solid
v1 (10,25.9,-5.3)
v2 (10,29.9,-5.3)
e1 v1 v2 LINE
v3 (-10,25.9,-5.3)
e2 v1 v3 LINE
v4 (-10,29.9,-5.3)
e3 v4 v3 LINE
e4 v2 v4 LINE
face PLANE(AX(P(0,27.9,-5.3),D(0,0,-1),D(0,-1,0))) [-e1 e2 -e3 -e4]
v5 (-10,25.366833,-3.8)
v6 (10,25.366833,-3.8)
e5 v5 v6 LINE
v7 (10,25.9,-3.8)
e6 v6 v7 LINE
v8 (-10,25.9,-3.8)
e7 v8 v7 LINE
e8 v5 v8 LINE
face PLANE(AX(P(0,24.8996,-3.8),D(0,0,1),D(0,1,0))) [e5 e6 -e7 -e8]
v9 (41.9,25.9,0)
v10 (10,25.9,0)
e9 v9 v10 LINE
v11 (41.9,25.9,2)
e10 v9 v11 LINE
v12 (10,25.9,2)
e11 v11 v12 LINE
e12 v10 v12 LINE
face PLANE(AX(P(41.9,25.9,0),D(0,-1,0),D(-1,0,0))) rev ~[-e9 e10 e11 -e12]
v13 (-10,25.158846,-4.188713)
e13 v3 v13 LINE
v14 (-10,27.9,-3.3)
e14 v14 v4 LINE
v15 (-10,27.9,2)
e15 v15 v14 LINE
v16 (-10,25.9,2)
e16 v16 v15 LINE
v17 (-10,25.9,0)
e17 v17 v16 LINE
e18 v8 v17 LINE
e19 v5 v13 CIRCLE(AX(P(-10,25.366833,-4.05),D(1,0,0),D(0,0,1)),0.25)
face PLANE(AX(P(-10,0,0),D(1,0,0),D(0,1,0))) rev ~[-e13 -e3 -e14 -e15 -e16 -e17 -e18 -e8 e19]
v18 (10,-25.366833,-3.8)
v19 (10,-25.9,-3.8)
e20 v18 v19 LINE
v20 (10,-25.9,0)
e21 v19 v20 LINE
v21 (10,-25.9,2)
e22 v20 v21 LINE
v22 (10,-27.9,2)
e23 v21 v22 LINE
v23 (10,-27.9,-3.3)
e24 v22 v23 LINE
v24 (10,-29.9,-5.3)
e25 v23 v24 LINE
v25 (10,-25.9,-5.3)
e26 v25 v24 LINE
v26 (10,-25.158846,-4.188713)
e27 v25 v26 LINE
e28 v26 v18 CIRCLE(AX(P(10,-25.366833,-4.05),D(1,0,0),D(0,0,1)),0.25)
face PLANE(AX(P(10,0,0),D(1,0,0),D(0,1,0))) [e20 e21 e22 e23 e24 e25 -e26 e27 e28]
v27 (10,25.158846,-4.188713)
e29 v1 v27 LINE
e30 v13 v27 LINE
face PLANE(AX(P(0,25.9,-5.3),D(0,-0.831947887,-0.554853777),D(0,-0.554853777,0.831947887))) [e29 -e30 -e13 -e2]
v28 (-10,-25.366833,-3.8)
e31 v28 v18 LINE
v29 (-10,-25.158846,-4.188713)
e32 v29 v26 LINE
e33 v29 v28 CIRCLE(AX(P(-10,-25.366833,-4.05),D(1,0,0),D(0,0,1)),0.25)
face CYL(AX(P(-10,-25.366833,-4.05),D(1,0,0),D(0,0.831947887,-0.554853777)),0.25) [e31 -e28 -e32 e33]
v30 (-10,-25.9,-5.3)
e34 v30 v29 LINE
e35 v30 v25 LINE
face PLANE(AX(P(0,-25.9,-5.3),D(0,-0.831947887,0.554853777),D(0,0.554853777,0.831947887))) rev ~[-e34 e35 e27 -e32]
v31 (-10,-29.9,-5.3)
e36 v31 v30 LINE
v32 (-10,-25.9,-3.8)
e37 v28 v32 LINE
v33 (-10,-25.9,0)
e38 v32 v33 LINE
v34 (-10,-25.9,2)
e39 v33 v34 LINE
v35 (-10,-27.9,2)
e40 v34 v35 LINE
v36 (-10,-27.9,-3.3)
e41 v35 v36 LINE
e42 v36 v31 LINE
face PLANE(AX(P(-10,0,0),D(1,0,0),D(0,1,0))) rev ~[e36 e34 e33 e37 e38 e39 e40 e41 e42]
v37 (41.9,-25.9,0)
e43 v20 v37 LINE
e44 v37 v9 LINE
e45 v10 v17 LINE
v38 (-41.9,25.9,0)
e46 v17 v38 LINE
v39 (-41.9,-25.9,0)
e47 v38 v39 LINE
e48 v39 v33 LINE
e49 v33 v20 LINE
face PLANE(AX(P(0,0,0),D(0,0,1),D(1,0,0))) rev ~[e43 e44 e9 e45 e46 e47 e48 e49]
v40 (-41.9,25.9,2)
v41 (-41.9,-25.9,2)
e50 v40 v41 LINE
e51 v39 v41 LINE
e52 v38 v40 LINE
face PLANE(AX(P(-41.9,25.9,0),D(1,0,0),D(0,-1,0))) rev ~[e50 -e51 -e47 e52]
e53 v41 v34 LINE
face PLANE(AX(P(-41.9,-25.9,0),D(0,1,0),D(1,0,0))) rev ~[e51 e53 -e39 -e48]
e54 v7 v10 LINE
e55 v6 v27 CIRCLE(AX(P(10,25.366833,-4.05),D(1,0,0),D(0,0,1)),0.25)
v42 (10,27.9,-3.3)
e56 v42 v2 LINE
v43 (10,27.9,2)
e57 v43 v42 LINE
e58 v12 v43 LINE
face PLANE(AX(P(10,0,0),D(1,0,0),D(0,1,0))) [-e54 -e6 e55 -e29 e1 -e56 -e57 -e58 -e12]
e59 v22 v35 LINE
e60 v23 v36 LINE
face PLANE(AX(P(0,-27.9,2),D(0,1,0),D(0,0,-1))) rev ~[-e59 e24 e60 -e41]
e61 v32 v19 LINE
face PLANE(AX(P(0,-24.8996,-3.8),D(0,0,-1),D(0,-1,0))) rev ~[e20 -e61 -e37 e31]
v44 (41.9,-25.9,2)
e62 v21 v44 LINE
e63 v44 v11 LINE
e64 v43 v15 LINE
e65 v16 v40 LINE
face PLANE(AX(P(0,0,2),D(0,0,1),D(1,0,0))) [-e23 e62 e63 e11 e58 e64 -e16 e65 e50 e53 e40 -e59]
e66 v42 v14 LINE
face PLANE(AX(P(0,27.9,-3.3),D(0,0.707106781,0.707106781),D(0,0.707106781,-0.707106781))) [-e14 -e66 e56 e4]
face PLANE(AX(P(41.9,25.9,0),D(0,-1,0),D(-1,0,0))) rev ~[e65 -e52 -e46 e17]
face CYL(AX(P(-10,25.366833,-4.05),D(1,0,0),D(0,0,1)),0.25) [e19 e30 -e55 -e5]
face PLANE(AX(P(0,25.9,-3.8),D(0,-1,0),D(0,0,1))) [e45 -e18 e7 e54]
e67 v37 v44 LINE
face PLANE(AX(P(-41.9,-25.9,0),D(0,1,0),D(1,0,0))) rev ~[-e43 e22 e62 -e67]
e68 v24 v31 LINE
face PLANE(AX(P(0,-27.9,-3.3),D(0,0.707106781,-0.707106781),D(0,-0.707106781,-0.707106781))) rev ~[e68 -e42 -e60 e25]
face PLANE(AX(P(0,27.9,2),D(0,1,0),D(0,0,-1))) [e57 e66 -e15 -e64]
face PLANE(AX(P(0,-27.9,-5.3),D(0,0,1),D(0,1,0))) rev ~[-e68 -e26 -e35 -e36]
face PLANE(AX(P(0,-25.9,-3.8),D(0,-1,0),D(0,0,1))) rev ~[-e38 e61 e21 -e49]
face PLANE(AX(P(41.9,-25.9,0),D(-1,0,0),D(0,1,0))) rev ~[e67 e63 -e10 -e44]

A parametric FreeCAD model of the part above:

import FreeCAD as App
import Part
import Sketcher
Q = App.Units.Quantity


def edges_at(feature, points):
    """Names of the edges that pass closest to the given points."""
    edges = feature.Shape.Edges
    near = lambda p: min(range(len(edges)), key=lambda i: edges[i].distToShape(Part.Vertex(*p))[0])
    return sorted({f"Edge{near(p) + 1}" for p in points})


def add_polygon(sketch, points):
    """Adds a closed chain of lines whose ends are joined by coincident constraints."""
    first, n = sketch.GeometryCount, len(points)
    for a, b in zip(points, points[1:] + points[:1]):
        sketch.addGeometry(Part.LineSegment(App.Vector(*a, 0), App.Vector(*b, 0)), False)
    for i in range(n):
        sketch.addConstraint(Sketcher.Constraint("Coincident", first + i, 2, first + (i + 1) % n, 1))

doc = App.newDocument("Part")
body = doc.addObject("PartDesign::Body", "Body")

# Sketch on XY plane
sketch1 = body.newObject("Sketcher::SketchObject", "Sketch")
sketch1.AttachmentSupport = (doc.getObject("XY_Plane"), [""])
sketch1.MapMode = "FlatFace"
add_polygon(sketch1, [(42, -26), (42, 26), (-42, 26), (-42, -26)])  # lines 0-3
sketch1.addConstraint([
    Sketcher.Constraint("Vertical", 0),
    Sketcher.Constraint("Horizontal", 1),
    Sketcher.Constraint("Vertical", 2),
    Sketcher.Constraint("Horizontal", 3),
    Sketcher.Constraint("Symmetric", 0, 2, 2, 2, -1, 1),
    Sketcher.Constraint("DistanceX", 1, 2, 1, 1, Q("83.8 mm")),
    Sketcher.Constraint("DistanceY", 0, 1, 0, 2, Q("51.8 mm")),
])
pad1 = body.newObject("PartDesign::Pad", "Pad")
pad1.Profile = sketch1
pad1.Length = 2

# Sketch on YZ plane
sketch2 = body.newObject("Sketcher::SketchObject", "Sketch001")
sketch2.AttachmentSupport = (doc.getObject("YZ_Plane"), [""])
sketch2.MapMode = "FlatFace"
add_polygon(sketch2, [(27.9, 2), (25.9, 2), (25.9, -3.8), (24.9, -3.8), (25.9, -5.3), (29.9, -5.3), (27.9, -3.3)])  # lines 0-6
add_polygon(sketch2, [(-25.9, -5.3), (-24.9, -3.8), (-25.9, -3.8), (-25.9, 2), (-27.9, 2), (-27.9, -3.3), (-29.9, -5.3)])  # lines 7-13
sketch2.addConstraint([
    Sketcher.Constraint("Horizontal", 0),
    Sketcher.Constraint("Vertical", 1),
    Sketcher.Constraint("Horizontal", 2),
    Sketcher.Constraint("Horizontal", 4),
    Sketcher.Constraint("Vertical", 6),
    Sketcher.Constraint("Horizontal", 8),
    Sketcher.Constraint("Vertical", 9),
    Sketcher.Constraint("Horizontal", 10),
    Sketcher.Constraint("Vertical", 11),
    Sketcher.Constraint("Horizontal", 13),
    Sketcher.Constraint("Symmetric", 2, 2, 7, 2, -2),
    Sketcher.Constraint("Symmetric", 0, 2, 9, 2, -2),
    Sketcher.Constraint("Symmetric", 5, 2, 11, 2, -2),
    Sketcher.Constraint("Symmetric", 4, 2, 12, 2, -2),
    Sketcher.Constraint("Perpendicular", 5, 12),
    Sketcher.Constraint("Vertical", 1, 2, 3, 2),
    Sketcher.Constraint("Vertical", 9, 2, 13, 2),
    Sketcher.Constraint("DistanceX", 0, 2, 0, 1, Q("2 mm")),
    Sketcher.Constraint("DistanceY", -1, 1, 0, 2, Q("2 mm")),
    Sketcher.Constraint("DistanceY", 3, 2, 5, 2, Q("2 mm")),
    Sketcher.Constraint("DistanceY", 3, 2, 0, 2, Q("7.3 mm")),
    Sketcher.Constraint("Distance", 3, Q("1.803 mm")),
    Sketcher.Constraint("DistanceX", 2, 2, 2, 1, Q("1.0004 mm")),
    Sketcher.Constraint("DistanceX", -1, 1, 0, 2, Q("25.9 mm")),
])
pad2 = body.newObject("PartDesign::Pad", "Pad001")
pad2.Profile = sketch2
pad2.Length = 20
pad2.Midplane = True
doc.recompute()

fillet = body.newObject("PartDesign::Fillet", "Fillet")
fillet.Base = (pad2, edges_at(pad2, [(0, 24.9, -3.8), (0, -24.9, -3.8)]))
fillet.Radius = 0.25

doc.recompute()
